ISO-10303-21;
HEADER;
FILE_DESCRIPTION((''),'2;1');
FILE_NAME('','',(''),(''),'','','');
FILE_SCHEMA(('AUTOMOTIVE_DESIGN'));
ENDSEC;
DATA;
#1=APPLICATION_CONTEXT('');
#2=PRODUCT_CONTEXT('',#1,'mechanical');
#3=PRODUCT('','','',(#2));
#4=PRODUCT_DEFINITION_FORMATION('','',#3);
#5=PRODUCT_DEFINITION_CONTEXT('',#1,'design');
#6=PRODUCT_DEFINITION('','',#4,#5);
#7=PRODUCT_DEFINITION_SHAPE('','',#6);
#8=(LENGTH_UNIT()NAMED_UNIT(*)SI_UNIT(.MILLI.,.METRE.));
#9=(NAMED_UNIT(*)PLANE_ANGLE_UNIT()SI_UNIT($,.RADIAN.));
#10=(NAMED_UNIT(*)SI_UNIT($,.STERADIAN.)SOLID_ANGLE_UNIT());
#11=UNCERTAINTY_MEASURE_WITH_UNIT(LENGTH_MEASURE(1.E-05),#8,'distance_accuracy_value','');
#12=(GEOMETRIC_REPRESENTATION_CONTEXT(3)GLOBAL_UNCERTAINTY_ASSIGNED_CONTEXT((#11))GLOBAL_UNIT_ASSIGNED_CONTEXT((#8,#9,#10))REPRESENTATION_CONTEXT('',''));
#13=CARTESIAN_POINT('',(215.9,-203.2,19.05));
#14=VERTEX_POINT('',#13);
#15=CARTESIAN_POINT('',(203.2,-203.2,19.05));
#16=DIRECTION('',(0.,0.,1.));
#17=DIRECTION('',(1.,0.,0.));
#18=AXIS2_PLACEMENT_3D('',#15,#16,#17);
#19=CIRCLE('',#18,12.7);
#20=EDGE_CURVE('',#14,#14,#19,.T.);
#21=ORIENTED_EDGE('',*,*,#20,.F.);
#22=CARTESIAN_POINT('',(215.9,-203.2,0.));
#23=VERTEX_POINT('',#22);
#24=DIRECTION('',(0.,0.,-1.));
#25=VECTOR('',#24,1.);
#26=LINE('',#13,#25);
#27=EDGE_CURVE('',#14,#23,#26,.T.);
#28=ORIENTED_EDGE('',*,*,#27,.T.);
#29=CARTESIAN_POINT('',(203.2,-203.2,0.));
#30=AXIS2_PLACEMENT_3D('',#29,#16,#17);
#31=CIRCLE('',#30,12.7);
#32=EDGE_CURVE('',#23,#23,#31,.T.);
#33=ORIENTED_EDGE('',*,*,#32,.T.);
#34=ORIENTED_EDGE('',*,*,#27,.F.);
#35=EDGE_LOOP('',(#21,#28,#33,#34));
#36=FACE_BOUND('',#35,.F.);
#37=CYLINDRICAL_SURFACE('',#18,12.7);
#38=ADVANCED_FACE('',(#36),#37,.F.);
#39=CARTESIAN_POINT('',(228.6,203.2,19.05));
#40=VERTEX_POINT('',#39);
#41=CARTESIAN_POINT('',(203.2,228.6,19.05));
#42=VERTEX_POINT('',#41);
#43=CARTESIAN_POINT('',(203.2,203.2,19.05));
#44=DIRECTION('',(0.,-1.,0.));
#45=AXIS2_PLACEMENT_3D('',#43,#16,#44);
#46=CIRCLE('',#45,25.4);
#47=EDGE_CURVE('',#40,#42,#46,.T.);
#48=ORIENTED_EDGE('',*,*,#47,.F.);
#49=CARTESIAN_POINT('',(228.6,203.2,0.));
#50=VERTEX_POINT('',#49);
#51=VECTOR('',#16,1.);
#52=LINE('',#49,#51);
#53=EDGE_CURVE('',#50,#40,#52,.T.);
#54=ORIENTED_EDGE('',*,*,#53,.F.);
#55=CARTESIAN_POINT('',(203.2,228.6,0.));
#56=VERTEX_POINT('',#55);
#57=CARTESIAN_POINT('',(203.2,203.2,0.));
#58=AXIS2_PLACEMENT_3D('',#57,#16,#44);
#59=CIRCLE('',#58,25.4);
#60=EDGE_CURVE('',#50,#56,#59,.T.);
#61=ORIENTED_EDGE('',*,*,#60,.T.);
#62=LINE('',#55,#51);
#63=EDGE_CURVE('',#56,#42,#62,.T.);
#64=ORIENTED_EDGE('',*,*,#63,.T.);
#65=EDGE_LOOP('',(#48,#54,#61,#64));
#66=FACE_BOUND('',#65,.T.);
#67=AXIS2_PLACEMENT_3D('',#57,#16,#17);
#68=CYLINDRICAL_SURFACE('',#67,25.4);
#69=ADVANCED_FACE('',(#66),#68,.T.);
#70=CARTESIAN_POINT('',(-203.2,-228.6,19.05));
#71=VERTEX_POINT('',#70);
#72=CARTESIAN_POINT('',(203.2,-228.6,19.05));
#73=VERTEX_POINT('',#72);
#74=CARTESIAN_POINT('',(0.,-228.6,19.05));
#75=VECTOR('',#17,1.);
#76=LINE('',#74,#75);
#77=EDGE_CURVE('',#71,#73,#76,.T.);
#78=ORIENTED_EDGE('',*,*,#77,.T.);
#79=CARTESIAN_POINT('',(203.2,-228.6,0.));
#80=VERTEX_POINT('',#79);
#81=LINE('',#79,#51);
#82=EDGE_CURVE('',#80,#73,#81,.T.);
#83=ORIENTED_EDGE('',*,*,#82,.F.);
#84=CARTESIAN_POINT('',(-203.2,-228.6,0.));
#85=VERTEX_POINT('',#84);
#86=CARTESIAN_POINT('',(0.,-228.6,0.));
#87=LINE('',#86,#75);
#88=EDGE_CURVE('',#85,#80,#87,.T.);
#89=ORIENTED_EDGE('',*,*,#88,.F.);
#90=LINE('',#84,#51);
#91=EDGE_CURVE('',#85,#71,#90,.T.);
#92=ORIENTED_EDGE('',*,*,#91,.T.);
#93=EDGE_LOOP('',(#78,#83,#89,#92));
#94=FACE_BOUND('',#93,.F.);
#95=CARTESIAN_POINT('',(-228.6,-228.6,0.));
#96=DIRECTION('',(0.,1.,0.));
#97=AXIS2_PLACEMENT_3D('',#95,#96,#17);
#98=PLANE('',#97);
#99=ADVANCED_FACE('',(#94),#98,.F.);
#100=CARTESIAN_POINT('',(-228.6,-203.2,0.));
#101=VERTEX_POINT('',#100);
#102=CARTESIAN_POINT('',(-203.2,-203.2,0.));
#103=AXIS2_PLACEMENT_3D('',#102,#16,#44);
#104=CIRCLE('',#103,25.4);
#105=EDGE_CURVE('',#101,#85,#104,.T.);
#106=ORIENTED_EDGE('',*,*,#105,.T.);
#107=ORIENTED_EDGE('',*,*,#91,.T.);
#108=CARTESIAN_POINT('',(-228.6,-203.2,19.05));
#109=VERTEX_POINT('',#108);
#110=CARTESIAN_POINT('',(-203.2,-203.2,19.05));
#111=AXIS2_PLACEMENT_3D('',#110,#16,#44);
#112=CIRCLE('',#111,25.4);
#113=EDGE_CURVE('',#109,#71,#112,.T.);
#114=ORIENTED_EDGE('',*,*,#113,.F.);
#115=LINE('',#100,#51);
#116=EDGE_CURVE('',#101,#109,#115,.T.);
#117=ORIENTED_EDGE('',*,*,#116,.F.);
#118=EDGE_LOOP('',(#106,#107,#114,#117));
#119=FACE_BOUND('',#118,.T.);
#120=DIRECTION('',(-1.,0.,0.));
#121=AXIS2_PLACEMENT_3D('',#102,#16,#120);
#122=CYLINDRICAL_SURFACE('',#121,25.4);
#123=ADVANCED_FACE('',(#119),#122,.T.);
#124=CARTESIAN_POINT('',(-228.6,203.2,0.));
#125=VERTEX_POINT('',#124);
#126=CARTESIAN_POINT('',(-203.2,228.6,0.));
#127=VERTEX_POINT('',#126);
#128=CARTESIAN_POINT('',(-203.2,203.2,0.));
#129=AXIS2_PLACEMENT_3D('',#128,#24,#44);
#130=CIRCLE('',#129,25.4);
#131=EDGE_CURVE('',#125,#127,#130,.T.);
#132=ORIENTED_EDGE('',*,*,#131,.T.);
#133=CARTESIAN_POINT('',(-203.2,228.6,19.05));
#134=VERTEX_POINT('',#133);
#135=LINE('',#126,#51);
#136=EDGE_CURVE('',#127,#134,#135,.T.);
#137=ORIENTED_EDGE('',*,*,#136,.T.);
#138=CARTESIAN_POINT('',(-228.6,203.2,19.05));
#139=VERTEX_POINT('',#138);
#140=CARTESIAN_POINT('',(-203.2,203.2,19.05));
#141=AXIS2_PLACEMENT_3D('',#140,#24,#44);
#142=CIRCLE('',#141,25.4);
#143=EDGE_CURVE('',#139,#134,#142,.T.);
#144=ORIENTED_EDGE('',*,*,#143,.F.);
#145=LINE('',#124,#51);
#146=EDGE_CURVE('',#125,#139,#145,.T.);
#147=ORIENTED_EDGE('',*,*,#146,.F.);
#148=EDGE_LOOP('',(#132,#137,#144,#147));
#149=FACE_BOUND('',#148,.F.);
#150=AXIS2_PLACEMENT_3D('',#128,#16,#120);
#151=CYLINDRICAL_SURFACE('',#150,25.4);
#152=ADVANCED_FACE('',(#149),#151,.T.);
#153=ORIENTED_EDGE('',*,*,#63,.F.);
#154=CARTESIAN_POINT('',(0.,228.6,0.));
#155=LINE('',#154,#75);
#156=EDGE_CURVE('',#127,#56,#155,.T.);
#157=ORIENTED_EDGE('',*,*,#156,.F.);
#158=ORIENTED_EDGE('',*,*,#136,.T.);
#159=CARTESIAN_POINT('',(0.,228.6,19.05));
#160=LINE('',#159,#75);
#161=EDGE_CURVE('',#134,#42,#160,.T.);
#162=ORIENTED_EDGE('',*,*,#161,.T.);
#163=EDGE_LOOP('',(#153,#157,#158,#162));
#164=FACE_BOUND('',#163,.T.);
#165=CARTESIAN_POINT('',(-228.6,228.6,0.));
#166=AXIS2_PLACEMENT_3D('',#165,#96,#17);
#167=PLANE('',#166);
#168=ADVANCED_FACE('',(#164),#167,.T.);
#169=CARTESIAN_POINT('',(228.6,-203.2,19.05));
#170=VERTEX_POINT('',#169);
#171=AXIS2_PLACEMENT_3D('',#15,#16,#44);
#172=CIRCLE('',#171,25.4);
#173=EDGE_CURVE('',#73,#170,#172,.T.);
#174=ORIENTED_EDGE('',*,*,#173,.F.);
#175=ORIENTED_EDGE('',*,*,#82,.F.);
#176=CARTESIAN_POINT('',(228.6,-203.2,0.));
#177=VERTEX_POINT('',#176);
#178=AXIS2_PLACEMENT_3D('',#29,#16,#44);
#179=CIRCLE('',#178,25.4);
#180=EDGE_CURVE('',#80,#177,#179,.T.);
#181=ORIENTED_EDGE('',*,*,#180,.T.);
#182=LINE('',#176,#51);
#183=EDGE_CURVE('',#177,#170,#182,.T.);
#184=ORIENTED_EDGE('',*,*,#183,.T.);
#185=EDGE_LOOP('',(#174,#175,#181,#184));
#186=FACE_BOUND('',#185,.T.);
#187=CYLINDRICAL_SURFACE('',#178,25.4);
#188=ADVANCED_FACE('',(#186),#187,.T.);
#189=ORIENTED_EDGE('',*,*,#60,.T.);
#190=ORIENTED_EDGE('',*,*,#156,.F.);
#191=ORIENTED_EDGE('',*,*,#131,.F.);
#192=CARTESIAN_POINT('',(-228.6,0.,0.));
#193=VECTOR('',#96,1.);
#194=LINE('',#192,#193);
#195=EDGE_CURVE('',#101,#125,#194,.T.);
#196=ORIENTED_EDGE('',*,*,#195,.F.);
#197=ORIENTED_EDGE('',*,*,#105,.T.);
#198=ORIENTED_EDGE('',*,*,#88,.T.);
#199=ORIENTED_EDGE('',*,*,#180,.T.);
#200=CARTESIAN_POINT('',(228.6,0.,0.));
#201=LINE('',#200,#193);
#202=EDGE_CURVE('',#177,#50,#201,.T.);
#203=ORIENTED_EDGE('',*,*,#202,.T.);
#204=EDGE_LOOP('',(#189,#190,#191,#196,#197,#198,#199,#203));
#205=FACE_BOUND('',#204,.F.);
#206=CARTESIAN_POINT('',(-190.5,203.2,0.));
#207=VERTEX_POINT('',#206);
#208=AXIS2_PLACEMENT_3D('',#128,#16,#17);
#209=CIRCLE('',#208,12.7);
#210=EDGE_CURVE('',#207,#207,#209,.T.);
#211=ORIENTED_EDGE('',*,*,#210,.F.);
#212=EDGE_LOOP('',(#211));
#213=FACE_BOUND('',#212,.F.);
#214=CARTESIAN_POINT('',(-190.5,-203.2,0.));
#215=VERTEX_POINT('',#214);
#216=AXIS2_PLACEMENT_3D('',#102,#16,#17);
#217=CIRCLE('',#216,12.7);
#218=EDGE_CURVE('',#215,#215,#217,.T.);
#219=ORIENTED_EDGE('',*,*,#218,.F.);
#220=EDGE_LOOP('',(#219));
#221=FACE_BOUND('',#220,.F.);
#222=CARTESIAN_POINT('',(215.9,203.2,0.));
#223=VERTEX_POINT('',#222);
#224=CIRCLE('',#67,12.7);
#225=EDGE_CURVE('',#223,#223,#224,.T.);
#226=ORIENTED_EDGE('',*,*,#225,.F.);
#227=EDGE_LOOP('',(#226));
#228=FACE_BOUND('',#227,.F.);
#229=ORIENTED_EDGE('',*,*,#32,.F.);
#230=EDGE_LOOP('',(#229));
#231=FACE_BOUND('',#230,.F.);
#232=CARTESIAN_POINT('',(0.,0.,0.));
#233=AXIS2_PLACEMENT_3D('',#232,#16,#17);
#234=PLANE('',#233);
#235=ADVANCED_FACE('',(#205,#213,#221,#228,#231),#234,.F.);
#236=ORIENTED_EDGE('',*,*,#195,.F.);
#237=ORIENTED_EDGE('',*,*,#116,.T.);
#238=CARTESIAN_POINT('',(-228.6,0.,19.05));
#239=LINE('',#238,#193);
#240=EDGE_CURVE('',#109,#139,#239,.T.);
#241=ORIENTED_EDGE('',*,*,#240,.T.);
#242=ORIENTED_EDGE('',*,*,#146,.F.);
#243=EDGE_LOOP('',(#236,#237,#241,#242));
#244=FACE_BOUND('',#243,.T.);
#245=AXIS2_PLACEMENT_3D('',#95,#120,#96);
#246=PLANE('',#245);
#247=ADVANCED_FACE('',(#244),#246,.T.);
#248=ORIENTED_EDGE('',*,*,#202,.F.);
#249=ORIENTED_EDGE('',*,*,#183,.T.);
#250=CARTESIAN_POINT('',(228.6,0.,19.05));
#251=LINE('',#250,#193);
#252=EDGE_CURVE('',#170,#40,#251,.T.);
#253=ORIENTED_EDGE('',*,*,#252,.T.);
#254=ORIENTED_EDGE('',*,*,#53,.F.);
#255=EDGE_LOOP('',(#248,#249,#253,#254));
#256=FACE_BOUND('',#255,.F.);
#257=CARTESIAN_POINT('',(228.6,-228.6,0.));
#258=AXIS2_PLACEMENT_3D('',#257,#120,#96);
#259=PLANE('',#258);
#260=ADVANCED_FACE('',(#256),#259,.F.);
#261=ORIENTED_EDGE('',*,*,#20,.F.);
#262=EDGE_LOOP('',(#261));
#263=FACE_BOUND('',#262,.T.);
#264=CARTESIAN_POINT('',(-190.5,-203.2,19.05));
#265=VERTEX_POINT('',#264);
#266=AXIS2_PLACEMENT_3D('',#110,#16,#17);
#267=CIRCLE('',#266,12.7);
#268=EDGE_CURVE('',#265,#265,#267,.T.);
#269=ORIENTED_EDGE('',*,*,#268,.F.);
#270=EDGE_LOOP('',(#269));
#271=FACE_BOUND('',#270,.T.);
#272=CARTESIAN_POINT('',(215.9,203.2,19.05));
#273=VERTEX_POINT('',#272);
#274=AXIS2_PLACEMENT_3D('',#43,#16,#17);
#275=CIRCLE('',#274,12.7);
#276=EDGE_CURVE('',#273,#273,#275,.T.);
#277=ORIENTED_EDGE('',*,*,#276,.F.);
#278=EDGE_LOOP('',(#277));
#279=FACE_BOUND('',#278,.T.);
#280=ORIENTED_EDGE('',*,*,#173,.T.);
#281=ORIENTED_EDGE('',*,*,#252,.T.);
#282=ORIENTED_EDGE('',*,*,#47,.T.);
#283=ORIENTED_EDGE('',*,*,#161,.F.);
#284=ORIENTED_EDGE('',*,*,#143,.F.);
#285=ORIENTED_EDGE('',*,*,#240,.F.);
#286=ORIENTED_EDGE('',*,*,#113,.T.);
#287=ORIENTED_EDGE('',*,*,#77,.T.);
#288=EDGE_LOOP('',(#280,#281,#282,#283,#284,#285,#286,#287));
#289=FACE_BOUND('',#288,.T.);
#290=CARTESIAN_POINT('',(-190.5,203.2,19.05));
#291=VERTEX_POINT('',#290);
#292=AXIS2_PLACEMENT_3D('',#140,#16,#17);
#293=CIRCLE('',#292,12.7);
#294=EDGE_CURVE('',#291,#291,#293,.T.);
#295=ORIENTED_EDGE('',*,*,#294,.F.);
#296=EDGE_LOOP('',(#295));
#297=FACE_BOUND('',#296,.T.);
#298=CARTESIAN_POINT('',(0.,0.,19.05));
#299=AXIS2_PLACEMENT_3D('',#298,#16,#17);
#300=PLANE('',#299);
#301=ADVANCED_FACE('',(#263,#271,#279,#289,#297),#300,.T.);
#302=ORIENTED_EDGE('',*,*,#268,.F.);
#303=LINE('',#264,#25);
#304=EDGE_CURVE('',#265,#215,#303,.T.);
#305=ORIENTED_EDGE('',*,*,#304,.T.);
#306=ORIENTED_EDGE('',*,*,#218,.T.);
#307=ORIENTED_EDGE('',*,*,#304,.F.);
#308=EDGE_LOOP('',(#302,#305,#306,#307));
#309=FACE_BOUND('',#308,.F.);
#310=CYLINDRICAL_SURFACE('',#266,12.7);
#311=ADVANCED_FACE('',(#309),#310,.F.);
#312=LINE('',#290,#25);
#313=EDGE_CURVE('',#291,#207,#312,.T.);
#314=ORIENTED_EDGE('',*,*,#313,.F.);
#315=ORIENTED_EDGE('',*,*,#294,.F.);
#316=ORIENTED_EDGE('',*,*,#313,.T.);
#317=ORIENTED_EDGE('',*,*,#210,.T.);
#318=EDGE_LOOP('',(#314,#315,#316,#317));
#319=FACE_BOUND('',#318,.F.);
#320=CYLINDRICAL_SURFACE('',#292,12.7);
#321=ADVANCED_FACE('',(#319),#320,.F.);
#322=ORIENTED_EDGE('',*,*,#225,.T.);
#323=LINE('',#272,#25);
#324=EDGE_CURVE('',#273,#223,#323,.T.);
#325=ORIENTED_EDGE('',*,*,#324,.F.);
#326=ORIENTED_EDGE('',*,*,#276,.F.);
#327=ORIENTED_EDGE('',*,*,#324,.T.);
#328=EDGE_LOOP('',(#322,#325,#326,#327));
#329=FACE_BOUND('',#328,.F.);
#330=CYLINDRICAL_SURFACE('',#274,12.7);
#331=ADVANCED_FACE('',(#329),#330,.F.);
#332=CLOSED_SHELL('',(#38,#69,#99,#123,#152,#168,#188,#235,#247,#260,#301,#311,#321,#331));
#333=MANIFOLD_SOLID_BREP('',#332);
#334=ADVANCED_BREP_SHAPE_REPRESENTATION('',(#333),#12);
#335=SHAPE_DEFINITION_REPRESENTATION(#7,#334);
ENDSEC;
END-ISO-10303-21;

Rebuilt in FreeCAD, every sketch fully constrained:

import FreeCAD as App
import Part
import Sketcher

V = App.Vector
Q = App.Units.Quantity


def edges_at(feature, points):
    """Names of the edges that pass closest to the given points."""
    edges = feature.Shape.Edges
    near = lambda p: min(range(len(edges)), key=lambda i: edges[i].distToShape(Part.Vertex(*p))[0])
    return sorted({f"Edge{near(p) + 1}" for p in points})

doc = App.newDocument("Part")
body = doc.addObject("PartDesign::Body", "Body")

sketch1 = body.newObject("Sketcher::SketchObject", "Sketch")
sketch1.AttachmentSupport = (doc.getObject("XY_Plane"), [""])
sketch1.MapMode = "FlatFace"
sketch1.addGeometry([
    Part.LineSegment(V(-229, 229, 0), V(-229, -229, 0)),
    Part.LineSegment(V(-229, -229, 0), V(229, -229, 0)),
    Part.LineSegment(V(229, -229, 0), V(229, 229, 0)),
    Part.LineSegment(V(229, 229, 0), V(-229, 229, 0)),
], False)
sketch1.addConstraint([
    Sketcher.Constraint("Coincident", 0, 2, 1, 1),
    Sketcher.Constraint("Coincident", 1, 2, 2, 1),
    Sketcher.Constraint("Coincident", 2, 2, 3, 1),
    Sketcher.Constraint("Coincident", 3, 2, 0, 1),
    Sketcher.Constraint("Vertical", 0),
    Sketcher.Constraint("Horizontal", 1),
    Sketcher.Constraint("Vertical", 2),
    Sketcher.Constraint("Horizontal", 3),
    Sketcher.Constraint("Symmetric", 0, 2, 2, 2, -1, 1),
    Sketcher.Constraint("Equal", 3, 0),
    Sketcher.Constraint("DistanceX", 1, 1, 1, 2, Q("18 in")),
])
pad1 = body.newObject("PartDesign::Pad", "Pad")
pad1.Profile = sketch1
pad1.Length = Q("0.75 in")
doc.recompute()

fillet = body.newObject("PartDesign::Fillet", "Fillet")
fillet.Base = (pad1, edges_at(pad1, [
    (228.6, -228.6, 9.525),
    (228.6, 228.6, 9.525),
    (-228.6, -228.6, 9.525),
    (-228.6, 228.6, 9.525),
]))
fillet.Radius = Q("1 in")

sketch2 = body.newObject("Sketcher::SketchObject", "Sketch001")
sketch2.AttachmentSupport = (doc.getObject("XY_Plane"), [""])
sketch2.MapMode = "FlatFace"
sketch2.AttachmentOffset = App.Placement(V(0, 0, 0.75 * 25.4), App.Rotation())
sketch2.addGeometry([
    Part.Circle(V(-203, 203, 0), V(0, 0, 1), 13),
    Part.Circle(V(203, 203, 0), V(0, 0, 1), 13),
    Part.Circle(V(203, -203, 0), V(0, 0, 1), 13),
    Part.Circle(V(-203, -203, 0), V(0, 0, 1), 13),
], False)
sketch2.addConstraint([
    Sketcher.Constraint("Equal", 0, 1),
    Sketcher.Constraint("Equal", 1, 2),
    Sketcher.Constraint("Equal", 2, 3),
    Sketcher.Constraint("Symmetric", 0, 3, 2, 3, -1, 1),
    Sketcher.Constraint("Symmetric", 1, 3, 3, 3, -1, 1),
    Sketcher.Constraint("Symmetric", 0, 3, 1, 3, -2),
    Sketcher.Constraint("Diameter", 0, Q("1 in")),
    Sketcher.Constraint("DistanceX", 0, 3, -1, 1, Q("8 in")),
    Sketcher.Constraint("DistanceY", -1, 1, 0, 3, Q("8 in")),
])
pocket1 = body.newObject("PartDesign::Pocket", "Pocket")
pocket1.Profile = sketch2
pocket1.Type = "ThroughAll"

doc.recompute()
